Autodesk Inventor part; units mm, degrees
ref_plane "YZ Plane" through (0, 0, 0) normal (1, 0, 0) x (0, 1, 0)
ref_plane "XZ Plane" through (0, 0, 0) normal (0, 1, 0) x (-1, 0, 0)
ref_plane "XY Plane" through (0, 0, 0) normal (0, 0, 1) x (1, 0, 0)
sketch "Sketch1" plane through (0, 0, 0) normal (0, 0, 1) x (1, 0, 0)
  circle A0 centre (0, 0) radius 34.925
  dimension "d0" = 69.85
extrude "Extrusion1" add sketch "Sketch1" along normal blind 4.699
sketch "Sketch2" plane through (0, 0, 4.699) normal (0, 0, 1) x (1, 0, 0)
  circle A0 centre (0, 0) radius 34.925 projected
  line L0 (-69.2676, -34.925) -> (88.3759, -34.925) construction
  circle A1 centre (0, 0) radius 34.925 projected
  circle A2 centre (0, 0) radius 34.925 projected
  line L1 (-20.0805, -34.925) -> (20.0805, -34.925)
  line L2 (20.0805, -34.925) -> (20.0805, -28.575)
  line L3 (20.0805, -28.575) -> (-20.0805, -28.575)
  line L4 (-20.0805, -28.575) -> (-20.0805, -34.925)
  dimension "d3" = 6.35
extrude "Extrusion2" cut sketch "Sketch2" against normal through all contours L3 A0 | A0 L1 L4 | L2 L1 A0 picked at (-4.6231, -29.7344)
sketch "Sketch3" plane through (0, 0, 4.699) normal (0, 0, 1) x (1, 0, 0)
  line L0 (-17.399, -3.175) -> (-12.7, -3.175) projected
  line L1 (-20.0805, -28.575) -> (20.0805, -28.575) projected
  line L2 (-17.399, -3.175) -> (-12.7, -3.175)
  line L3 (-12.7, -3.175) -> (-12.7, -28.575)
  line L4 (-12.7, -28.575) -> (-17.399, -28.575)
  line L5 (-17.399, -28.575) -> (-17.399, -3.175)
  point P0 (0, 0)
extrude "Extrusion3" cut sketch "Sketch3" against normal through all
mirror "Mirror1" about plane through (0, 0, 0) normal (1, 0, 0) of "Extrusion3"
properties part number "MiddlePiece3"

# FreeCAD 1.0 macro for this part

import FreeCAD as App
import Part
import Sketcher
Q = App.Units.Quantity

doc = App.newDocument("Part")
body = doc.addObject("PartDesign::Body", "Body")

# Sketch on XY plane
sketch1 = body.newObject("Sketcher::SketchObject", "Sketch")
sketch1.AttachmentSupport = (doc.getObject("XY_Plane"), [""])
sketch1.MapMode = "FlatFace"
sketch1.addGeometry(Part.Circle(App.Vector(0, 0, 0), App.Vector(0, 0, 1), 34.925), False)
sketch1.addConstraint([
    Sketcher.Constraint("Coincident", 0, 3, -1, 1),
    Sketcher.Constraint("Diameter", 0, Q("2.75 in")),
])
pad1 = body.newObject("PartDesign::Pad", "Pad")
pad1.Profile = sketch1
pad1.Length = Q("0.185 in")

# Sketch on XY plane
sketch2 = body.newObject("Sketcher::SketchObject", "Sketch001")
sketch2.AttachmentSupport = (doc.getObject("XY_Plane"), [""])
sketch2.MapMode = "FlatFace"
sketch2.AttachmentOffset = App.Placement(App.Vector(0, 0, 0.185 * 25.4), App.Rotation())
sketch2.addGeometry([
    Part.LineSegment(App.Vector(20.0805, -28.575, 0), App.Vector(-20.0805, -28.575, 0)),
    Part.LineSegment(App.Vector(-20.0805, -28.575, 0), App.Vector(-20.0805, -34.925, 0)),
    Part.LineSegment(App.Vector(-20.0805, -34.925, 0), App.Vector(20.0805, -34.925, 0)),
    Part.LineSegment(App.Vector(20.0805, -34.925, 0), App.Vector(20.0805, -28.575, 0)),
], False)
sketch2.addConstraint([
    Sketcher.Constraint("Coincident", 0, 2, 1, 1),
    Sketcher.Constraint("Coincident", 1, 2, 2, 1),
    Sketcher.Constraint("Coincident", 2, 2, 3, 1),
    Sketcher.Constraint("Coincident", 3, 2, 0, 1),
    Sketcher.Constraint("Horizontal", 0),
    Sketcher.Constraint("Vertical", 1),
    Sketcher.Constraint("Horizontal", 2),
    Sketcher.Constraint("Vertical", 3),
    Sketcher.Constraint("DistanceY", 1, 2, 1, 1, Q("0.25 in")),
    Sketcher.Constraint("DistanceY", 0, 2, -1, 1, Q("1.125 in")),
    Sketcher.Constraint("DistanceX", 0, 2, 0, 1, 40.161),
    Sketcher.Constraint("DistanceX", 0, 2, -1, 1, 20.0805),
])
pocket1 = body.newObject("PartDesign::Pocket", "Pocket")
pocket1.Profile = sketch2
pocket1.Type = "ThroughAll"

# Sketch on XY plane
sketch3 = body.newObject("Sketcher::SketchObject", "Sketch002")
sketch3.AttachmentSupport = (doc.getObject("XY_Plane"), [""])
sketch3.MapMode = "FlatFace"
sketch3.AttachmentOffset = App.Placement(App.Vector(0, 0, 0.185 * 25.4), App.Rotation())
sketch3.addGeometry([
    Part.LineSegment(App.Vector(-12.7, -3.175, 0), App.Vector(-17.399, -3.175, 0)),
    Part.LineSegment(App.Vector(-17.399, -3.175, 0), App.Vector(-17.399, -28.575, 0)),
    Part.LineSegment(App.Vector(-17.399, -28.575, 0), App.Vector(-12.7, -28.575, 0)),
    Part.LineSegment(App.Vector(-12.7, -28.575, 0), App.Vector(-12.7, -3.175, 0)),
], False)
sketch3.addConstraint([
    Sketcher.Constraint("Coincident", 0, 2, 1, 1),
    Sketcher.Constraint("Coincident", 1, 2, 2, 1),
    Sketcher.Constraint("Coincident", 2, 2, 3, 1),
    Sketcher.Constraint("Coincident", 3, 2, 0, 1),
    Sketcher.Constraint("Horizontal", 0),
    Sketcher.Constraint("Vertical", 1),
    Sketcher.Constraint("Horizontal", 2),
    Sketcher.Constraint("Vertical", 3),
    Sketcher.Constraint("DistanceY", 1, 2, 1, 1, Q("1 in")),
    Sketcher.Constraint("DistanceX", 2, 2, -1, 1, Q("0.5 in")),
    Sketcher.Constraint("DistanceX", 0, 2, 0, 1, Q("0.185 in")),
    Sketcher.Constraint("DistanceY", 0, 2, -1, 1, Q("0.125 in")),
])
pocket2 = body.newObject("PartDesign::Pocket", "Pocket001")
pocket2.Profile = sketch3
pocket2.Type = "ThroughAll"
doc.recompute()

mirrored = body.newObject("PartDesign::Mirrored", "Mirrored")
mirrored.Originals = [pocket2]
mirrored.MirrorPlane = (doc.getObject("YZ_Plane"), [""])
body.Tip = mirrored

doc.recompute()
